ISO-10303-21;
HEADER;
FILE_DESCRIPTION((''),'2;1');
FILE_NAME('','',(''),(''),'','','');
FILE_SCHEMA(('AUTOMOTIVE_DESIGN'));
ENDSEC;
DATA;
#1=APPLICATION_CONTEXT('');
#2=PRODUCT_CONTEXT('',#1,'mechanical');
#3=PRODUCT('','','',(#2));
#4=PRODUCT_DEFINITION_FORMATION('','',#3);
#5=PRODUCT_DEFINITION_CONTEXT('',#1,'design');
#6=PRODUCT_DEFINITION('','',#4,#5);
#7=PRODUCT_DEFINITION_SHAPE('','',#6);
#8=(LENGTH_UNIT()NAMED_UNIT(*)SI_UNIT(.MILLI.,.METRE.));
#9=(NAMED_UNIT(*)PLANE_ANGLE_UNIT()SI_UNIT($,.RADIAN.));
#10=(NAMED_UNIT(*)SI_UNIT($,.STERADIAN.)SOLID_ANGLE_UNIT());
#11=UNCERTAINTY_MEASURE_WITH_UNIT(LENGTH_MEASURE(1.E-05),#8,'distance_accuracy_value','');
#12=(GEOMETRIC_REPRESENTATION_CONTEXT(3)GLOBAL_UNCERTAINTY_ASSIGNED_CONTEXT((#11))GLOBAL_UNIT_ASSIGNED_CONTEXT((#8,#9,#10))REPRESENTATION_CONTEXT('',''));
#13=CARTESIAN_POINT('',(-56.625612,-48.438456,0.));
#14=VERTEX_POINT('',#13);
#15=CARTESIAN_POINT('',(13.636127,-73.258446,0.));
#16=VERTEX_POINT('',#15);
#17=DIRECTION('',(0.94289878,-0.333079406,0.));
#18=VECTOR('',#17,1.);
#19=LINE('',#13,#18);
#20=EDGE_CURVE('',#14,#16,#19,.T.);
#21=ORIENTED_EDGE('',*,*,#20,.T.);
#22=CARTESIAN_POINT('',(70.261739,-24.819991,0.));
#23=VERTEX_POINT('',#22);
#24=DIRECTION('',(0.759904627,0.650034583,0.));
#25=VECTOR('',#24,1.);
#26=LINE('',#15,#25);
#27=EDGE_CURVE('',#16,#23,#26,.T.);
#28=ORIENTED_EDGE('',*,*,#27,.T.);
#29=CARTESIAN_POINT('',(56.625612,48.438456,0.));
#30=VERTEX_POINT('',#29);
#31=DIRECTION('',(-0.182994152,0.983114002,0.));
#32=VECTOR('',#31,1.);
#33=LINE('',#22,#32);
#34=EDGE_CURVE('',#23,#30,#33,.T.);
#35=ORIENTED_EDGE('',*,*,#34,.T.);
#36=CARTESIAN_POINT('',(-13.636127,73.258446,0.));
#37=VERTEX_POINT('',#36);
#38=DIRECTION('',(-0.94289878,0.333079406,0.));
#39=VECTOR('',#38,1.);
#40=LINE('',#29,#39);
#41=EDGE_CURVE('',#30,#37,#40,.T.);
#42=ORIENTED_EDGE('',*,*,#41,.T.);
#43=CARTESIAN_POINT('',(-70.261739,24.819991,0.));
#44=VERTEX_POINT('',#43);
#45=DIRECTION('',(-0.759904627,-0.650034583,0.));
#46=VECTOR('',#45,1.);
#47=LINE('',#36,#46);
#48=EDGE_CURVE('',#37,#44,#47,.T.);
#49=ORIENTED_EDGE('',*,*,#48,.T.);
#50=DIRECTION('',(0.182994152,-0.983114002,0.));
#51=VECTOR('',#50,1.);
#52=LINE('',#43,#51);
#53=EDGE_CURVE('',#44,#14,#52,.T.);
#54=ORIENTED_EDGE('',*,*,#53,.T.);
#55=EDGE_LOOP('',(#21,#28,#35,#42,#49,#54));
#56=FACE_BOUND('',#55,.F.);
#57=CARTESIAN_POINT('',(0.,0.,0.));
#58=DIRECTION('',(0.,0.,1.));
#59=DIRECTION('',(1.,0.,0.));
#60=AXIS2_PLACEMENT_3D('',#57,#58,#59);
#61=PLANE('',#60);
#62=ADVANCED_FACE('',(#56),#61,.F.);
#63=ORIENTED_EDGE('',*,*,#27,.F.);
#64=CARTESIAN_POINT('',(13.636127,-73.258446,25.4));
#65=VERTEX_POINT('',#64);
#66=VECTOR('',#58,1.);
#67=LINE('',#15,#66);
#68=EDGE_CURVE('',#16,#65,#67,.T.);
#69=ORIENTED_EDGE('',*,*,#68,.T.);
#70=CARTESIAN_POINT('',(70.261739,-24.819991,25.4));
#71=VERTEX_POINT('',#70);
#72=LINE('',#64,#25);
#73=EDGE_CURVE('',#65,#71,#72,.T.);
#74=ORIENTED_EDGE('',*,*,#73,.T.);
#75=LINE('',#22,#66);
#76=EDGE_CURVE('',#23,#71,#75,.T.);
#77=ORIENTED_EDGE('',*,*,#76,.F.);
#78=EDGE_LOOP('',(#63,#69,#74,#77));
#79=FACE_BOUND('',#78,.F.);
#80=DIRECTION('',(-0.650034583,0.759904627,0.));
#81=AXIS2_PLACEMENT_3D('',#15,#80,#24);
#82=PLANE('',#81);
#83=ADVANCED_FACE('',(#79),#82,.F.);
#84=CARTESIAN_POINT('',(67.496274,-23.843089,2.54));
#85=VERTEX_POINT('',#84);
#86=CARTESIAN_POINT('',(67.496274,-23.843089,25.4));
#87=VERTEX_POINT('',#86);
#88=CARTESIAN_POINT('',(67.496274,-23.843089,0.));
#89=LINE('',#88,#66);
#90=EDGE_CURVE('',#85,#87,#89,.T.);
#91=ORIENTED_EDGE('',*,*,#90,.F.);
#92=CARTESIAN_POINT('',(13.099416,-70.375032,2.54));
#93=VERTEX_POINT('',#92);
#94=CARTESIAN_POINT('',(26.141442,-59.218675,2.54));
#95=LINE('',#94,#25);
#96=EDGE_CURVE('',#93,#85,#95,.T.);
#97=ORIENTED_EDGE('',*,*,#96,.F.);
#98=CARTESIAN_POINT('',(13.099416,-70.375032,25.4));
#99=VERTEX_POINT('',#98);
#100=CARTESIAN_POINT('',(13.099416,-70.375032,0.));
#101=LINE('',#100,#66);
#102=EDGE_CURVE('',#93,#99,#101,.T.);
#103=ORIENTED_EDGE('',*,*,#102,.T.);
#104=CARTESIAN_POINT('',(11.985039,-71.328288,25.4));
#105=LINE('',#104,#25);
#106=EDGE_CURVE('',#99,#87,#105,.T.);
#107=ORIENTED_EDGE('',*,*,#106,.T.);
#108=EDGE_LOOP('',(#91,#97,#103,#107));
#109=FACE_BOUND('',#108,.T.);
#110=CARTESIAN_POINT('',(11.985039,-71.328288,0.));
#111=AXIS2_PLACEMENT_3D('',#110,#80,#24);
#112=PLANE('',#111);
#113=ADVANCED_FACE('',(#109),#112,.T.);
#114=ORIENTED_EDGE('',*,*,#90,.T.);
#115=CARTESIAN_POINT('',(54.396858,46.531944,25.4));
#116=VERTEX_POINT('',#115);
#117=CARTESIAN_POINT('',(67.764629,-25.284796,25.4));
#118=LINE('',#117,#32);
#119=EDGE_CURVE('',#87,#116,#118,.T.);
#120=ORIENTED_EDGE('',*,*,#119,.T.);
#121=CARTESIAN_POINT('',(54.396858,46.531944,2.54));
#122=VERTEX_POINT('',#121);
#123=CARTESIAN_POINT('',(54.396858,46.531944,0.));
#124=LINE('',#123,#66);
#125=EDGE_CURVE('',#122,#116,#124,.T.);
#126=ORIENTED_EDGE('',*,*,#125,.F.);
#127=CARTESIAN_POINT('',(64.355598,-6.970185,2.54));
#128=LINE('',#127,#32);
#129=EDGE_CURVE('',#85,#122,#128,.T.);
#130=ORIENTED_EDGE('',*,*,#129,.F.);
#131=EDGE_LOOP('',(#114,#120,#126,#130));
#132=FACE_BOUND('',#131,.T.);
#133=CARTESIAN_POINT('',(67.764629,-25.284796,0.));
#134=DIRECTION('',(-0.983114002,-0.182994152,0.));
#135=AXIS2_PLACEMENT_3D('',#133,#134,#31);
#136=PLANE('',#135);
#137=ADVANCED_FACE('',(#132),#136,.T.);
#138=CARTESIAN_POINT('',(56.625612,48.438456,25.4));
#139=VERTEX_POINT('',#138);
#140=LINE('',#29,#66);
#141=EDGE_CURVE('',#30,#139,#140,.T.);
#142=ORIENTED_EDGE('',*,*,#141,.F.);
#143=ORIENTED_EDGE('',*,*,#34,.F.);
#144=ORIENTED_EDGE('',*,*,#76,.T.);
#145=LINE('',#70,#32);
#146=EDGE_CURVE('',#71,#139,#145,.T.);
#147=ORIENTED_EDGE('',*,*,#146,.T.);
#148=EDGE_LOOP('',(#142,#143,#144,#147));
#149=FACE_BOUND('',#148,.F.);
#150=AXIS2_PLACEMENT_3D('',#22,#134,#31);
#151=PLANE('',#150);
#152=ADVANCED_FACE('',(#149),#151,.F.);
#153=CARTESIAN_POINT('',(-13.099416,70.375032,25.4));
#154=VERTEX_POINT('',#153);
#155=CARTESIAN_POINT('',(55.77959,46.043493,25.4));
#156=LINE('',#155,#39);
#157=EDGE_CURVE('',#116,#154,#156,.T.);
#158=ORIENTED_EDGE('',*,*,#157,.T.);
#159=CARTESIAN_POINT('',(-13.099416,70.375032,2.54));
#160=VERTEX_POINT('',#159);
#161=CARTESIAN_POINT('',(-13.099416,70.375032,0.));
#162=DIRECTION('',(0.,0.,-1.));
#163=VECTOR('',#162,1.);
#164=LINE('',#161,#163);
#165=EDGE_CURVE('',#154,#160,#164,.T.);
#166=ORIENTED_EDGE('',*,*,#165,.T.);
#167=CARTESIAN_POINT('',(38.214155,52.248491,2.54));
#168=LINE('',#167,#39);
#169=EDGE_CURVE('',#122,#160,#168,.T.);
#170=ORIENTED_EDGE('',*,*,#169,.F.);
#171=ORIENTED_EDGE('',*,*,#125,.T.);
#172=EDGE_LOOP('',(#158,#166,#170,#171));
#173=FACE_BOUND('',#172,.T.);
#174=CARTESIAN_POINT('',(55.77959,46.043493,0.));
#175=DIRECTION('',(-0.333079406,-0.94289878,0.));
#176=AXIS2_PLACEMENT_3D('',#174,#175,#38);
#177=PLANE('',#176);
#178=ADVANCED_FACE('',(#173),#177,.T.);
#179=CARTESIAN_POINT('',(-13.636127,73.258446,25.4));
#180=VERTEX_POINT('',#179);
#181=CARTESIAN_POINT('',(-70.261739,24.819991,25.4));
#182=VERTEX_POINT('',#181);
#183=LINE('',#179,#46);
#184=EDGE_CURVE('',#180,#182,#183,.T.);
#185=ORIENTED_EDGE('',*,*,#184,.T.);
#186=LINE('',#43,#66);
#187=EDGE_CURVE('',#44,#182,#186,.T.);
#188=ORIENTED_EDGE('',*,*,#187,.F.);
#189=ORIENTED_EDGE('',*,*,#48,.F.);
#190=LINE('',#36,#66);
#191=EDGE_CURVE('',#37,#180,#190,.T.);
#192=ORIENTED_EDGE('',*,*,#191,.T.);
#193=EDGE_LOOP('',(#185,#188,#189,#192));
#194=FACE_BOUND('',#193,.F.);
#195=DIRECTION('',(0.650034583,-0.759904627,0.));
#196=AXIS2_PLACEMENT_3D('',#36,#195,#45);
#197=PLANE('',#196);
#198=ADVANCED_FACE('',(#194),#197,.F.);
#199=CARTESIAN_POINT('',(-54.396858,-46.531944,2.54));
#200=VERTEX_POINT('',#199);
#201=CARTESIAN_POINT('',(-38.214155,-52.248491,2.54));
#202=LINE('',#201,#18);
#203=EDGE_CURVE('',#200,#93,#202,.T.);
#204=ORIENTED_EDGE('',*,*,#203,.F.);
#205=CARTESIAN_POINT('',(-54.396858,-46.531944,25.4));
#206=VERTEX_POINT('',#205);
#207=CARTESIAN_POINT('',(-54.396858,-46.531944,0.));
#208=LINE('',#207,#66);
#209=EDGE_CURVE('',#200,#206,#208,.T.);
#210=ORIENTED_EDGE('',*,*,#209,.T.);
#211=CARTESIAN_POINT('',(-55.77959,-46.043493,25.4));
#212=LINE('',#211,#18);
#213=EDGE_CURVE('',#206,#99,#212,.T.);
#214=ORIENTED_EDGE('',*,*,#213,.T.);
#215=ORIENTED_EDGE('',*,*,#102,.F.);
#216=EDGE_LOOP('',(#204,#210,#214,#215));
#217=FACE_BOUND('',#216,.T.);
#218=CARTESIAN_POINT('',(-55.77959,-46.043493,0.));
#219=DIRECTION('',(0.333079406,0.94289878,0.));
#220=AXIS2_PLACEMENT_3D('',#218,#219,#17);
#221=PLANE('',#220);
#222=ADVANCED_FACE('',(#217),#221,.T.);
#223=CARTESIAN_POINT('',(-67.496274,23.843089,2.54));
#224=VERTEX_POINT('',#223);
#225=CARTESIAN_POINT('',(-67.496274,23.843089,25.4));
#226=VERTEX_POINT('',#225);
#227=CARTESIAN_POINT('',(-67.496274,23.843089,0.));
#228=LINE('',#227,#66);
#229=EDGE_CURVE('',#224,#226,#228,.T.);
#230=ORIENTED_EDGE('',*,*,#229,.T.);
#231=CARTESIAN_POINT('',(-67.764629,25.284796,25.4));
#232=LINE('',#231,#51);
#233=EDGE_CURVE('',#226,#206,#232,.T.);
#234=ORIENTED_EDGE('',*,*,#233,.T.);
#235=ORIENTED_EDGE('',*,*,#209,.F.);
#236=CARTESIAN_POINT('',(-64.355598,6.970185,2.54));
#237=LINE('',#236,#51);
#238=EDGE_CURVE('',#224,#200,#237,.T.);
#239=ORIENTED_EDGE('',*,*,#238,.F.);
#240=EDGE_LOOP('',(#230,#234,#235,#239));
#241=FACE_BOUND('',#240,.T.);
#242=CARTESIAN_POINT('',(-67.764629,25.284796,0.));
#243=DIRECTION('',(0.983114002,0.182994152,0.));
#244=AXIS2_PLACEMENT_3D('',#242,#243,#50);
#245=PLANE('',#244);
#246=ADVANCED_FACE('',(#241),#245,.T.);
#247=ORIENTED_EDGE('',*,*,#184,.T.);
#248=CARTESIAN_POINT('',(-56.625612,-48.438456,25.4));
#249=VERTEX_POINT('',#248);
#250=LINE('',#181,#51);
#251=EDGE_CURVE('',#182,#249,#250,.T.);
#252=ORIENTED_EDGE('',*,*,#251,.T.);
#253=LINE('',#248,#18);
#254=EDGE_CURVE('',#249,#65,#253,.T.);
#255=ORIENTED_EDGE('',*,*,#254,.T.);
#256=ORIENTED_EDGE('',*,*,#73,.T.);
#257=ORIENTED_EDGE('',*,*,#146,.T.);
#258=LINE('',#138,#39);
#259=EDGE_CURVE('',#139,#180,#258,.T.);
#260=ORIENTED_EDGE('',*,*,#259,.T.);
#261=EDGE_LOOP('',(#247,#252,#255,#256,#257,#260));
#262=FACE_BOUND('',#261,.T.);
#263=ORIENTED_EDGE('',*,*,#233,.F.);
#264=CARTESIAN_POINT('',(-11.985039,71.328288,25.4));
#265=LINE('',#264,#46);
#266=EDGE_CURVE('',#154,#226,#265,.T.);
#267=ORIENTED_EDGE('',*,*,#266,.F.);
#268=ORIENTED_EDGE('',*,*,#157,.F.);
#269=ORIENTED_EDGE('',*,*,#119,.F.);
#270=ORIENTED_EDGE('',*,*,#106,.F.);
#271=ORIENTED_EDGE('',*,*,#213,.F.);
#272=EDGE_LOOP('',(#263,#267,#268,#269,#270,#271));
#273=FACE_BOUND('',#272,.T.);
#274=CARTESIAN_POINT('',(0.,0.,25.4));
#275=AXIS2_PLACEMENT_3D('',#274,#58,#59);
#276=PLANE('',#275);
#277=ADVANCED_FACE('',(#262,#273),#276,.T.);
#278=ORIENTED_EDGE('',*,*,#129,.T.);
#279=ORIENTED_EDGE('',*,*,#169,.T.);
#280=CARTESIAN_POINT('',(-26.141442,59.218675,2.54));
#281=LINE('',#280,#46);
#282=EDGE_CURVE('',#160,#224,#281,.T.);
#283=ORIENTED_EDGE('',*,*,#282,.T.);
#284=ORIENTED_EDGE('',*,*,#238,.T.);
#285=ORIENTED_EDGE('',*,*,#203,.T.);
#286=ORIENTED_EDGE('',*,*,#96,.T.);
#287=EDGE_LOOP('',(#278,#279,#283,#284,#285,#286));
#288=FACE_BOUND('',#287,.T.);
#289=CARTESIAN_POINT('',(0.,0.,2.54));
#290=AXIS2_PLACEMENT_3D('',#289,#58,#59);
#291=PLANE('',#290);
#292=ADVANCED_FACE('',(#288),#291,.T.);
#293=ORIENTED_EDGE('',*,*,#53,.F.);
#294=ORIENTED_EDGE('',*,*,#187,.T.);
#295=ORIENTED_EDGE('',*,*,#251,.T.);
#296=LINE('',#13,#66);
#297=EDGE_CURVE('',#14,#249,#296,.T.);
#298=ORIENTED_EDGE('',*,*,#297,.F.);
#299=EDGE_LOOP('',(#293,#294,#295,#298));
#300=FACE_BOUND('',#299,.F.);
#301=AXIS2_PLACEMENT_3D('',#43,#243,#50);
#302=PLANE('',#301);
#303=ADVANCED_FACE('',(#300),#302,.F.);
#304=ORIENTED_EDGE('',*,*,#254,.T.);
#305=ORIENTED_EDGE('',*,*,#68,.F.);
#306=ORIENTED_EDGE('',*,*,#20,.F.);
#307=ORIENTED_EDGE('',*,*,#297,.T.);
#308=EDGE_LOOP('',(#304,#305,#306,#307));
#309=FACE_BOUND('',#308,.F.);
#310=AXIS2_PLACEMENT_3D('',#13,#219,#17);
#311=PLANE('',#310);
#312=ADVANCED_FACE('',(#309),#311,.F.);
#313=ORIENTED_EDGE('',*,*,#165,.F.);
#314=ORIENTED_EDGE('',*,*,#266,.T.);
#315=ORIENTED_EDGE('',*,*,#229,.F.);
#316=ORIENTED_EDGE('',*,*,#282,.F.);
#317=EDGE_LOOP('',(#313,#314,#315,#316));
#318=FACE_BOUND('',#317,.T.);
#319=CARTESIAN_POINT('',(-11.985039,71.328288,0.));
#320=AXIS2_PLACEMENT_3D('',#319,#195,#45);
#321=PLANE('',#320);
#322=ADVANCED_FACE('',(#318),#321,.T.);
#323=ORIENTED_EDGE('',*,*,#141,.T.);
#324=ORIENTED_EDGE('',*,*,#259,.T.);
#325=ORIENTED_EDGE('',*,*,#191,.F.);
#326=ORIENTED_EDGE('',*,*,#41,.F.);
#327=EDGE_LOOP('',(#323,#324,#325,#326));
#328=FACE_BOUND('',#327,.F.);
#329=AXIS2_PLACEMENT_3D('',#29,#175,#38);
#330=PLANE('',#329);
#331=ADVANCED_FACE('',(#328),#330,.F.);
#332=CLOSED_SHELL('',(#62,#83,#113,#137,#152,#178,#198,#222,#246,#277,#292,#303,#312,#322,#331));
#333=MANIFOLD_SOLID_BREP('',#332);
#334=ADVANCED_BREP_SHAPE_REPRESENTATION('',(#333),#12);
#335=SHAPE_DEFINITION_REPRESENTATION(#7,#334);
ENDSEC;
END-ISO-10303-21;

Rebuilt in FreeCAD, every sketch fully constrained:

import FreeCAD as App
import Part
import Sketcher
Q = App.Units.Quantity


def faces_at(feature, points):
    """Names of the faces that lie closest to the given points."""
    faces = feature.Shape.Faces
    near = lambda p: min(range(len(faces)), key=lambda i: faces[i].distToShape(Part.Vertex(*p))[0])
    return sorted({f"Face{near(p) + 1}" for p in points})

doc = App.newDocument("Part")
params = doc.addObject("Spreadsheet::Sheet", "Params")
for row, (alias, value) in enumerate([
    ("pad1_length", "1 in"),
    ("thickness_wall", "0.1 in"),
], start=1):
    params.set(f"A{row}", alias)
    params.set(f"B{row}", "=" + value)
    params.setAlias(f"B{row}", alias)

body = doc.addObject("PartDesign::Body", "Body")

# Sketch on XY plane
sketch1 = body.newObject("Sketcher::SketchObject", "Sketch")
sketch1.AttachmentSupport = (doc.getObject("XY_Plane"), [""])
sketch1.MapMode = "FlatFace"
sketch1.addGeometry([
    Part.LineSegment(App.Vector(-14, 73, 0), App.Vector(-70, 25, 0)),  # 0
    Part.LineSegment(App.Vector(-70, 25, 0), App.Vector(-57, -48, 0)),  # 1
    Part.LineSegment(App.Vector(-57, -48, 0), App.Vector(14, -73, 0)),  # 2
    Part.LineSegment(App.Vector(14, -73, 0), App.Vector(70, -25, 0)),  # 3
    Part.LineSegment(App.Vector(70, -25, 0), App.Vector(57, 48, 0)),  # 4
    Part.LineSegment(App.Vector(57, 48, 0), App.Vector(-14, 73, 0)),  # 5
], False)
sketch1.addConstraint([
    Sketcher.Constraint("Coincident", 0, 2, 1, 1),
    Sketcher.Constraint("Coincident", 1, 2, 2, 1),
    Sketcher.Constraint("Coincident", 2, 2, 3, 1),
    Sketcher.Constraint("Coincident", 3, 2, 4, 1),
    Sketcher.Constraint("Coincident", 4, 2, 5, 1),
    Sketcher.Constraint("Coincident", 5, 2, 0, 1),
    Sketcher.Constraint("Symmetric", 0, 2, 3, 2, -1, 1),
    Sketcher.Constraint("Symmetric", 1, 2, 4, 2, -1, 1),
    Sketcher.Constraint("Symmetric", 2, 2, 5, 2, -1, 1),
    Sketcher.Constraint("Equal", 0, 1),
    Sketcher.Constraint("Equal", 1, 2),
    Sketcher.Constraint("DistanceX", 0, 2, -1, 1, Q("70.261739 mm")),
    Sketcher.Constraint("DistanceY", -1, 1, 0, 2, Q("24.819991 mm")),
    Sketcher.Constraint("DistanceX", 1, 2, -1, 1, Q("56.625612 mm")),
    Sketcher.Constraint("DistanceX", 1, 2, 2, 2, Q("70.261739 mm")),
])
pad1 = body.newObject("PartDesign::Pad", "Pad")
pad1.Profile = sketch1
pad1.setExpression("Length", "Params.pad1_length")
doc.recompute()

thickness = body.newObject("PartDesign::Thickness", "Thickness")
thickness.Base = (pad1, faces_at(pad1, [(0, 0, 25.4)]))
thickness.setExpression("Value", "Params.thickness_wall")
thickness.Reversed = True
thickness.Join = "Arc"

doc.recompute()
